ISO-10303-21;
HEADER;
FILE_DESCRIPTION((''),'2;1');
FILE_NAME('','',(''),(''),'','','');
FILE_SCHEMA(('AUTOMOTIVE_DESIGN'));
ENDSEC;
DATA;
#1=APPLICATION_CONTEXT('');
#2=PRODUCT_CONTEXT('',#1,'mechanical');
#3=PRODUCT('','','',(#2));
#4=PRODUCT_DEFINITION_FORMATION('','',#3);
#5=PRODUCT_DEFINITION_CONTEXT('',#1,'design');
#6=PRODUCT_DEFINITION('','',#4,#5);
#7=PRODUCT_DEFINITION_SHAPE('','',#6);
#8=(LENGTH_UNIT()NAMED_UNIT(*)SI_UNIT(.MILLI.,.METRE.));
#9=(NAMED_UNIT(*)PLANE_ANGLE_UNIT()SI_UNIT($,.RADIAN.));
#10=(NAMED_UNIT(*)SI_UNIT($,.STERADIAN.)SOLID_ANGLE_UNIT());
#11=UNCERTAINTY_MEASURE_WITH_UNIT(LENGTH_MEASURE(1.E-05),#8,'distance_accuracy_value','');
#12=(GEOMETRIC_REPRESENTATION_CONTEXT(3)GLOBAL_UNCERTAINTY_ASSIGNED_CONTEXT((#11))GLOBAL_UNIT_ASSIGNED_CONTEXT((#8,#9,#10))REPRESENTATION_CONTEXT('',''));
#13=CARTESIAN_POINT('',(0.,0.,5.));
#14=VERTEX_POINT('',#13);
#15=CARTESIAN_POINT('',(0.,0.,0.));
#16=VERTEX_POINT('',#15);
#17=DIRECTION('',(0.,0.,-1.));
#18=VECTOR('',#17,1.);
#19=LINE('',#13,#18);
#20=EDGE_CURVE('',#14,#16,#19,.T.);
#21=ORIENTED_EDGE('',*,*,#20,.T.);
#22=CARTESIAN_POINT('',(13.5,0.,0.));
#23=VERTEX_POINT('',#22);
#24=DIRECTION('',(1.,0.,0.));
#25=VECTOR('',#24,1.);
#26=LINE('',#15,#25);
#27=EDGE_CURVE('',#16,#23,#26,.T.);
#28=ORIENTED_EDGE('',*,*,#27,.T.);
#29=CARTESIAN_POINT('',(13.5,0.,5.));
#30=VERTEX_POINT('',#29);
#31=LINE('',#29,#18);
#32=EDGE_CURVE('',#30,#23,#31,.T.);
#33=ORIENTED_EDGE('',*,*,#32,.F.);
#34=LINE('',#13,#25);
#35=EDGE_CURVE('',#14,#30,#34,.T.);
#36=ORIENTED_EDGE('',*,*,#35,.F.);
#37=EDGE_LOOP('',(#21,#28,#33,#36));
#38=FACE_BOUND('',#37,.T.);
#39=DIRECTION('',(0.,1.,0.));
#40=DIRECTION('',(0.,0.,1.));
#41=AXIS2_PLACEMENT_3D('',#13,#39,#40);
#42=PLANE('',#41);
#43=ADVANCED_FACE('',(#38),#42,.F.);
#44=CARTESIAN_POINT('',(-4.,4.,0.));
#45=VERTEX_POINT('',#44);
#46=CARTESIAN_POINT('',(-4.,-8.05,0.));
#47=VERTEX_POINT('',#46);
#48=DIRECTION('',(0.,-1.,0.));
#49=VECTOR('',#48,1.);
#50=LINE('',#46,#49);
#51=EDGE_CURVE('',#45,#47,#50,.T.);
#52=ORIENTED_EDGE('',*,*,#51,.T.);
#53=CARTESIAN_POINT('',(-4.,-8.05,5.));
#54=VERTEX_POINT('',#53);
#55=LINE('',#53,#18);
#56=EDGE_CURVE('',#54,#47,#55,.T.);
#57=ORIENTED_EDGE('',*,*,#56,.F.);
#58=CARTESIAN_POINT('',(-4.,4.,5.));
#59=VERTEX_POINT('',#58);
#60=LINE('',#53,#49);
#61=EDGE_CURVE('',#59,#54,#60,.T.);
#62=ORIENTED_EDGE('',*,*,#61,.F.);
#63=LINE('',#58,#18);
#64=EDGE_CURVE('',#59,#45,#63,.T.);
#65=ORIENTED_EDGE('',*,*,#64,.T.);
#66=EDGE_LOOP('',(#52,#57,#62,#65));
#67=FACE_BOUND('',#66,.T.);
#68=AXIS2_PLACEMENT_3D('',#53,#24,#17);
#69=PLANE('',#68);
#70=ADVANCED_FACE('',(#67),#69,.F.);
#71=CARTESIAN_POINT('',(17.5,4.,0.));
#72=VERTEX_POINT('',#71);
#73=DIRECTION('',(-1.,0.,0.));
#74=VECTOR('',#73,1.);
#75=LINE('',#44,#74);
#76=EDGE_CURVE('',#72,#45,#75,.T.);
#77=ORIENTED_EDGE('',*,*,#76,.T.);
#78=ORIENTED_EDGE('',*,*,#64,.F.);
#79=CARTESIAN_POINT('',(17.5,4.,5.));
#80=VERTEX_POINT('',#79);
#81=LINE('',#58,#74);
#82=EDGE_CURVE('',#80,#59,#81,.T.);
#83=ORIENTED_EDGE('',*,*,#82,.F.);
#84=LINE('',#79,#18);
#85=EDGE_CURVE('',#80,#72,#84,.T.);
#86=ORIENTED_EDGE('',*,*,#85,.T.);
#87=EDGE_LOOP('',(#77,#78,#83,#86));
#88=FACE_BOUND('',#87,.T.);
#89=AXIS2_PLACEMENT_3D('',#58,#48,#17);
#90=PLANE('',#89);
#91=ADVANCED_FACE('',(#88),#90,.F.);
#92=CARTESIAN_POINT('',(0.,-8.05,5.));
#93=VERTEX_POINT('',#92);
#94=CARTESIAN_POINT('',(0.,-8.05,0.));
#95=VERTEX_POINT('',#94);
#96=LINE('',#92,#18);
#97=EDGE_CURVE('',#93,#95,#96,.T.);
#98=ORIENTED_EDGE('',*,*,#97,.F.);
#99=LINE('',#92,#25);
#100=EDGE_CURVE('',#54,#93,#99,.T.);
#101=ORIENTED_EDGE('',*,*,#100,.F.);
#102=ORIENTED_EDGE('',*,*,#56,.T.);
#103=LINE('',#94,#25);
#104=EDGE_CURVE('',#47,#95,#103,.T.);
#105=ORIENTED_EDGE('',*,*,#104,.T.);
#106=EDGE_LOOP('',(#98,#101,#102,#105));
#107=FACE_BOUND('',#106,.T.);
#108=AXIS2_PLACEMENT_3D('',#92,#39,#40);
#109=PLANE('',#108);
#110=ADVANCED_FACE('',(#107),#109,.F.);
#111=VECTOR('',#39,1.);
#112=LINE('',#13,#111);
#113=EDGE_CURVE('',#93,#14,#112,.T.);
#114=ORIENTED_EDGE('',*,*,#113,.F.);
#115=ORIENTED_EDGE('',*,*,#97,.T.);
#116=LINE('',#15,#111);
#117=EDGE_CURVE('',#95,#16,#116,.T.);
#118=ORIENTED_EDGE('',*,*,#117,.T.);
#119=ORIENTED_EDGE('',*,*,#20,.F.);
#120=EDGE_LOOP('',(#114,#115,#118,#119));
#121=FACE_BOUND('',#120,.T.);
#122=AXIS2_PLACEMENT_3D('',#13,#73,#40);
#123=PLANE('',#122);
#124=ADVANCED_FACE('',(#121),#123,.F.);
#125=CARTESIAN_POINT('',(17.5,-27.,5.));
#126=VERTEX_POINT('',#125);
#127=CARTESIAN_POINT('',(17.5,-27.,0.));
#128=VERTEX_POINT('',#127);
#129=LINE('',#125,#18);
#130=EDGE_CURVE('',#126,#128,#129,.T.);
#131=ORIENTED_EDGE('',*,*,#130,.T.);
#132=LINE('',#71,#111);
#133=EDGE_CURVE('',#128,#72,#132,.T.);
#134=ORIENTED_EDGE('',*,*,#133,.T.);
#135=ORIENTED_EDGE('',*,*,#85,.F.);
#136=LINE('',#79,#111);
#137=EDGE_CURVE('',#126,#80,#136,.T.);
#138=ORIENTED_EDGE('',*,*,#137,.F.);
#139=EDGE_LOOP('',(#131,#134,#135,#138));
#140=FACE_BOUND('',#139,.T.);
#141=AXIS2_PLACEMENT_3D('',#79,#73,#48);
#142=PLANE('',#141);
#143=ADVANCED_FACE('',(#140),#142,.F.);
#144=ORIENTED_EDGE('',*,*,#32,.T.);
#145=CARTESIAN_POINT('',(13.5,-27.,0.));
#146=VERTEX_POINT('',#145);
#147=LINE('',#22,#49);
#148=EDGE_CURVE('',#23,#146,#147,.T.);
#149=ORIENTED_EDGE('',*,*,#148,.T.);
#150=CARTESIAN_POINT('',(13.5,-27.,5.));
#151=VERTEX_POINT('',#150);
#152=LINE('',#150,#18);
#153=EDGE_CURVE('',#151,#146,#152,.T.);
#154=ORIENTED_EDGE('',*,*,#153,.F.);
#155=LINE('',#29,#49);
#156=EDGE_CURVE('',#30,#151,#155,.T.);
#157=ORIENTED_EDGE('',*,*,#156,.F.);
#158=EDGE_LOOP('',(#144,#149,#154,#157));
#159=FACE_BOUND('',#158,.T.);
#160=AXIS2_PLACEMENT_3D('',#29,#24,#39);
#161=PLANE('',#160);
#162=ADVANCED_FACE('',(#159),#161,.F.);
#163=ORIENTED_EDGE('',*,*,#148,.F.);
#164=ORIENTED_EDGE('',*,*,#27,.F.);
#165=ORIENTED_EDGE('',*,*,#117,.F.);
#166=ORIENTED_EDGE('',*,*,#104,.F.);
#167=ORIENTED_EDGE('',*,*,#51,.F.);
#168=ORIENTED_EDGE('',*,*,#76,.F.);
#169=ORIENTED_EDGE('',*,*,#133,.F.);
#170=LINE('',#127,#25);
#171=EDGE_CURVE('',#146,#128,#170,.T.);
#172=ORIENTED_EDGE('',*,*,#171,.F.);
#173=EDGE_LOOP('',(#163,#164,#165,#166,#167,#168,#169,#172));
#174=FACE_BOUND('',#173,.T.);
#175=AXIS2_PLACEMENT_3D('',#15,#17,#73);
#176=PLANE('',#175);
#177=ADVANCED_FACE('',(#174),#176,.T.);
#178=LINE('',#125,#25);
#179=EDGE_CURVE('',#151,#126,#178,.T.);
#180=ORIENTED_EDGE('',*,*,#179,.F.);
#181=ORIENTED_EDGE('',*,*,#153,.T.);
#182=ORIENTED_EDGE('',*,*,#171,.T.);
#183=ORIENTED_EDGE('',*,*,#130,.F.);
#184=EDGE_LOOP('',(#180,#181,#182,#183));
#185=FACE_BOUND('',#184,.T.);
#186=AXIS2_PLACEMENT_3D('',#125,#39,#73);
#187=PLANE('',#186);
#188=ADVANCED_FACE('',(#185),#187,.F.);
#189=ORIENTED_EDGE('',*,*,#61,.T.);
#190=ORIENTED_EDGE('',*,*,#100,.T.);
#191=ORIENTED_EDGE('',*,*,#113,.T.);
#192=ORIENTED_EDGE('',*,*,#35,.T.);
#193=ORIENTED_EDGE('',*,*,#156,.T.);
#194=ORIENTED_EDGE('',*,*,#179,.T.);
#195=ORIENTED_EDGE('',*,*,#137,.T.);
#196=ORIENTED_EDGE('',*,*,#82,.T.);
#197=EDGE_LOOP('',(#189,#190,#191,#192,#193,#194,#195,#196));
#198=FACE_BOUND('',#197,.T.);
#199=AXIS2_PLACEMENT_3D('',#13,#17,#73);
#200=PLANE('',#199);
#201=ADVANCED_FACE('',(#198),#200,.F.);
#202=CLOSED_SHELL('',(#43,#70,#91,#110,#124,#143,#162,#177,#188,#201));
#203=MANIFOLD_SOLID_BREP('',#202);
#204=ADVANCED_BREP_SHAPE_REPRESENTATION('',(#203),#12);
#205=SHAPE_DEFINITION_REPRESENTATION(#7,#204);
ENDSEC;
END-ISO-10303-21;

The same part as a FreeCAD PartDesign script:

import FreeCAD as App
import Part
import Sketcher

V = App.Vector

doc = App.newDocument("Part")
body = doc.addObject("PartDesign::Body", "Body")

# Sketch on XY plane
sketch1 = body.newObject("Sketcher::SketchObject", "Sketch")
sketch1.AttachmentSupport = (doc.getObject("XY_Plane"), [""])
sketch1.MapMode = "FlatFace"
sketch1.addGeometry(Part.LineSegment(V(0, 0, 0), V(13.5, 0, 0)), False)
sketch1.addGeometry(Part.LineSegment(V(13.5, 0, 0), V(13.5, -27, 0)), False)
sketch1.addGeometry(Part.LineSegment(V(13.5, -27, 0), V(17.5, -27, 0)), False)
sketch1.addGeometry(Part.LineSegment(V(17.5, -27, 0), V(17.5, 4, 0)), False)
sketch1.addGeometry(Part.LineSegment(V(17.5, 4, 0), V(-4, 4, 0)), False)
sketch1.addGeometry(Part.LineSegment(V(-4, 4, 0), V(-4, -8.1, 0)), False)
sketch1.addGeometry(Part.LineSegment(V(-4, -8.1, 0), V(0, -8.1, 0)), False)
sketch1.addGeometry(Part.LineSegment(V(0, -8.1, 0), V(0, 0, 0)), False)
sketch1.addConstraint(Sketcher.Constraint("Coincident", 0, 2, 1, 1))
sketch1.addConstraint(Sketcher.Constraint("Coincident", 1, 2, 2, 1))
sketch1.addConstraint(Sketcher.Constraint("Coincident", 2, 2, 3, 1))
sketch1.addConstraint(Sketcher.Constraint("Coincident", 3, 2, 4, 1))
sketch1.addConstraint(Sketcher.Constraint("Coincident", 4, 2, 5, 1))
sketch1.addConstraint(Sketcher.Constraint("Coincident", 5, 2, 6, 1))
sketch1.addConstraint(Sketcher.Constraint("Coincident", 6, 2, 7, 1))
sketch1.addConstraint(Sketcher.Constraint("Coincident", 7, 2, 0, 1))
sketch1.addConstraint(Sketcher.Constraint("Horizontal", 0))
sketch1.addConstraint(Sketcher.Constraint("Vertical", 1))
sketch1.addConstraint(Sketcher.Constraint("Horizontal", 2))
sketch1.addConstraint(Sketcher.Constraint("Vertical", 3))
sketch1.addConstraint(Sketcher.Constraint("Horizontal", 4))
sketch1.addConstraint(Sketcher.Constraint("Vertical", 5))
sketch1.addConstraint(Sketcher.Constraint("Horizontal", 6))
sketch1.addConstraint(Sketcher.Constraint("Vertical", 7))
sketch1.addConstraint(Sketcher.Constraint("Coincident", 7, 2, -1, 1))
sketch1.addConstraint(Sketcher.Constraint("Equal", 2, 6))
sketch1.addConstraint(Sketcher.Constraint("DistanceX", 2, 1, 2, 2, 4.0))
sketch1.addConstraint(Sketcher.Constraint("DistanceY", 1, 2, 1, 1, 27.0))
sketch1.addConstraint(Sketcher.Constraint("DistanceY", 3, 1, 3, 2, 31.0))
sketch1.addConstraint(Sketcher.Constraint("DistanceX", 0, 1, 0, 2, 13.5))
sketch1.addConstraint(Sketcher.Constraint("DistanceY", 5, 2, 5, 1, 12.05))
pad1 = body.newObject("PartDesign::Pad", "Pad")
pad1.Profile = sketch1
pad1.Length = 5

doc.recompute()
